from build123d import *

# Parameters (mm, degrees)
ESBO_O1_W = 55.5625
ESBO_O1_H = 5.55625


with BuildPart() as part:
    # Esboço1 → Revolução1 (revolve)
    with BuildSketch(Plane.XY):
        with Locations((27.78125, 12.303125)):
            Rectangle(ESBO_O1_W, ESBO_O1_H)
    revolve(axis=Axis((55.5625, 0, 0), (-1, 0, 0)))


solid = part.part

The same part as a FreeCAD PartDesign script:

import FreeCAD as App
import Part
import Sketcher

V = App.Vector
Q = App.Units.Quantity

doc = App.newDocument("Part")
body = doc.addObject("PartDesign::Body", "Body")

sketch1 = doc.addObject("Sketcher::SketchObject", "Sketch")
body.addObject(sketch1)
sketch1.AttachmentSupport = (doc.XY_Plane, [""])
sketch1.MapMode = "FlatFace"
sketch1.addGeometry(Part.LineSegment(V(0, 15, 0), V(0, 10, 0)), False)
sketch1.addGeometry(Part.LineSegment(V(0, 10, 0), V(56, 10, 0)), False)
sketch1.addGeometry(Part.LineSegment(V(56, 10, 0), V(56, 15, 0)), False)
sketch1.addGeometry(Part.LineSegment(V(56, 15, 0), V(0, 15, 0)), False)
sketch1.addConstraint(Sketcher.Constraint("Coincident", 0, 2, 1, 1))
sketch1.addConstraint(Sketcher.Constraint("Coincident", 1, 2, 2, 1))
sketch1.addConstraint(Sketcher.Constraint("Coincident", 2, 2, 3, 1))
sketch1.addConstraint(Sketcher.Constraint("Coincident", 3, 2, 0, 1))
sketch1.addConstraint(Sketcher.Constraint("Vertical", 0))
sketch1.addConstraint(Sketcher.Constraint("Horizontal", 1))
sketch1.addConstraint(Sketcher.Constraint("Vertical", 2))
sketch1.addConstraint(Sketcher.Constraint("Horizontal", 3))
sketch1.addConstraint(Sketcher.Constraint("PointOnObject", 0, 2, -2))
sketch1.addConstraint(Sketcher.Constraint("DistanceX", 1, 1, 1, 2, Q("2.1875 in")))
sketch1.addConstraint(Sketcher.Constraint("DistanceY", 0, 2, 0, 1, Q("0.21875 in")))
sketch1.addConstraint(Sketcher.Constraint("DistanceY", -1, 1, 0, 2, Q("0.375 in")))
revolution = doc.addObject("PartDesign::Revolution", "Revolution")
body.addObject(revolution)
revolution.Profile = sketch1
revolution.ReferenceAxis = (sketch1, ["H_Axis"])
revolution.Angle = 360

doc.recompute()
